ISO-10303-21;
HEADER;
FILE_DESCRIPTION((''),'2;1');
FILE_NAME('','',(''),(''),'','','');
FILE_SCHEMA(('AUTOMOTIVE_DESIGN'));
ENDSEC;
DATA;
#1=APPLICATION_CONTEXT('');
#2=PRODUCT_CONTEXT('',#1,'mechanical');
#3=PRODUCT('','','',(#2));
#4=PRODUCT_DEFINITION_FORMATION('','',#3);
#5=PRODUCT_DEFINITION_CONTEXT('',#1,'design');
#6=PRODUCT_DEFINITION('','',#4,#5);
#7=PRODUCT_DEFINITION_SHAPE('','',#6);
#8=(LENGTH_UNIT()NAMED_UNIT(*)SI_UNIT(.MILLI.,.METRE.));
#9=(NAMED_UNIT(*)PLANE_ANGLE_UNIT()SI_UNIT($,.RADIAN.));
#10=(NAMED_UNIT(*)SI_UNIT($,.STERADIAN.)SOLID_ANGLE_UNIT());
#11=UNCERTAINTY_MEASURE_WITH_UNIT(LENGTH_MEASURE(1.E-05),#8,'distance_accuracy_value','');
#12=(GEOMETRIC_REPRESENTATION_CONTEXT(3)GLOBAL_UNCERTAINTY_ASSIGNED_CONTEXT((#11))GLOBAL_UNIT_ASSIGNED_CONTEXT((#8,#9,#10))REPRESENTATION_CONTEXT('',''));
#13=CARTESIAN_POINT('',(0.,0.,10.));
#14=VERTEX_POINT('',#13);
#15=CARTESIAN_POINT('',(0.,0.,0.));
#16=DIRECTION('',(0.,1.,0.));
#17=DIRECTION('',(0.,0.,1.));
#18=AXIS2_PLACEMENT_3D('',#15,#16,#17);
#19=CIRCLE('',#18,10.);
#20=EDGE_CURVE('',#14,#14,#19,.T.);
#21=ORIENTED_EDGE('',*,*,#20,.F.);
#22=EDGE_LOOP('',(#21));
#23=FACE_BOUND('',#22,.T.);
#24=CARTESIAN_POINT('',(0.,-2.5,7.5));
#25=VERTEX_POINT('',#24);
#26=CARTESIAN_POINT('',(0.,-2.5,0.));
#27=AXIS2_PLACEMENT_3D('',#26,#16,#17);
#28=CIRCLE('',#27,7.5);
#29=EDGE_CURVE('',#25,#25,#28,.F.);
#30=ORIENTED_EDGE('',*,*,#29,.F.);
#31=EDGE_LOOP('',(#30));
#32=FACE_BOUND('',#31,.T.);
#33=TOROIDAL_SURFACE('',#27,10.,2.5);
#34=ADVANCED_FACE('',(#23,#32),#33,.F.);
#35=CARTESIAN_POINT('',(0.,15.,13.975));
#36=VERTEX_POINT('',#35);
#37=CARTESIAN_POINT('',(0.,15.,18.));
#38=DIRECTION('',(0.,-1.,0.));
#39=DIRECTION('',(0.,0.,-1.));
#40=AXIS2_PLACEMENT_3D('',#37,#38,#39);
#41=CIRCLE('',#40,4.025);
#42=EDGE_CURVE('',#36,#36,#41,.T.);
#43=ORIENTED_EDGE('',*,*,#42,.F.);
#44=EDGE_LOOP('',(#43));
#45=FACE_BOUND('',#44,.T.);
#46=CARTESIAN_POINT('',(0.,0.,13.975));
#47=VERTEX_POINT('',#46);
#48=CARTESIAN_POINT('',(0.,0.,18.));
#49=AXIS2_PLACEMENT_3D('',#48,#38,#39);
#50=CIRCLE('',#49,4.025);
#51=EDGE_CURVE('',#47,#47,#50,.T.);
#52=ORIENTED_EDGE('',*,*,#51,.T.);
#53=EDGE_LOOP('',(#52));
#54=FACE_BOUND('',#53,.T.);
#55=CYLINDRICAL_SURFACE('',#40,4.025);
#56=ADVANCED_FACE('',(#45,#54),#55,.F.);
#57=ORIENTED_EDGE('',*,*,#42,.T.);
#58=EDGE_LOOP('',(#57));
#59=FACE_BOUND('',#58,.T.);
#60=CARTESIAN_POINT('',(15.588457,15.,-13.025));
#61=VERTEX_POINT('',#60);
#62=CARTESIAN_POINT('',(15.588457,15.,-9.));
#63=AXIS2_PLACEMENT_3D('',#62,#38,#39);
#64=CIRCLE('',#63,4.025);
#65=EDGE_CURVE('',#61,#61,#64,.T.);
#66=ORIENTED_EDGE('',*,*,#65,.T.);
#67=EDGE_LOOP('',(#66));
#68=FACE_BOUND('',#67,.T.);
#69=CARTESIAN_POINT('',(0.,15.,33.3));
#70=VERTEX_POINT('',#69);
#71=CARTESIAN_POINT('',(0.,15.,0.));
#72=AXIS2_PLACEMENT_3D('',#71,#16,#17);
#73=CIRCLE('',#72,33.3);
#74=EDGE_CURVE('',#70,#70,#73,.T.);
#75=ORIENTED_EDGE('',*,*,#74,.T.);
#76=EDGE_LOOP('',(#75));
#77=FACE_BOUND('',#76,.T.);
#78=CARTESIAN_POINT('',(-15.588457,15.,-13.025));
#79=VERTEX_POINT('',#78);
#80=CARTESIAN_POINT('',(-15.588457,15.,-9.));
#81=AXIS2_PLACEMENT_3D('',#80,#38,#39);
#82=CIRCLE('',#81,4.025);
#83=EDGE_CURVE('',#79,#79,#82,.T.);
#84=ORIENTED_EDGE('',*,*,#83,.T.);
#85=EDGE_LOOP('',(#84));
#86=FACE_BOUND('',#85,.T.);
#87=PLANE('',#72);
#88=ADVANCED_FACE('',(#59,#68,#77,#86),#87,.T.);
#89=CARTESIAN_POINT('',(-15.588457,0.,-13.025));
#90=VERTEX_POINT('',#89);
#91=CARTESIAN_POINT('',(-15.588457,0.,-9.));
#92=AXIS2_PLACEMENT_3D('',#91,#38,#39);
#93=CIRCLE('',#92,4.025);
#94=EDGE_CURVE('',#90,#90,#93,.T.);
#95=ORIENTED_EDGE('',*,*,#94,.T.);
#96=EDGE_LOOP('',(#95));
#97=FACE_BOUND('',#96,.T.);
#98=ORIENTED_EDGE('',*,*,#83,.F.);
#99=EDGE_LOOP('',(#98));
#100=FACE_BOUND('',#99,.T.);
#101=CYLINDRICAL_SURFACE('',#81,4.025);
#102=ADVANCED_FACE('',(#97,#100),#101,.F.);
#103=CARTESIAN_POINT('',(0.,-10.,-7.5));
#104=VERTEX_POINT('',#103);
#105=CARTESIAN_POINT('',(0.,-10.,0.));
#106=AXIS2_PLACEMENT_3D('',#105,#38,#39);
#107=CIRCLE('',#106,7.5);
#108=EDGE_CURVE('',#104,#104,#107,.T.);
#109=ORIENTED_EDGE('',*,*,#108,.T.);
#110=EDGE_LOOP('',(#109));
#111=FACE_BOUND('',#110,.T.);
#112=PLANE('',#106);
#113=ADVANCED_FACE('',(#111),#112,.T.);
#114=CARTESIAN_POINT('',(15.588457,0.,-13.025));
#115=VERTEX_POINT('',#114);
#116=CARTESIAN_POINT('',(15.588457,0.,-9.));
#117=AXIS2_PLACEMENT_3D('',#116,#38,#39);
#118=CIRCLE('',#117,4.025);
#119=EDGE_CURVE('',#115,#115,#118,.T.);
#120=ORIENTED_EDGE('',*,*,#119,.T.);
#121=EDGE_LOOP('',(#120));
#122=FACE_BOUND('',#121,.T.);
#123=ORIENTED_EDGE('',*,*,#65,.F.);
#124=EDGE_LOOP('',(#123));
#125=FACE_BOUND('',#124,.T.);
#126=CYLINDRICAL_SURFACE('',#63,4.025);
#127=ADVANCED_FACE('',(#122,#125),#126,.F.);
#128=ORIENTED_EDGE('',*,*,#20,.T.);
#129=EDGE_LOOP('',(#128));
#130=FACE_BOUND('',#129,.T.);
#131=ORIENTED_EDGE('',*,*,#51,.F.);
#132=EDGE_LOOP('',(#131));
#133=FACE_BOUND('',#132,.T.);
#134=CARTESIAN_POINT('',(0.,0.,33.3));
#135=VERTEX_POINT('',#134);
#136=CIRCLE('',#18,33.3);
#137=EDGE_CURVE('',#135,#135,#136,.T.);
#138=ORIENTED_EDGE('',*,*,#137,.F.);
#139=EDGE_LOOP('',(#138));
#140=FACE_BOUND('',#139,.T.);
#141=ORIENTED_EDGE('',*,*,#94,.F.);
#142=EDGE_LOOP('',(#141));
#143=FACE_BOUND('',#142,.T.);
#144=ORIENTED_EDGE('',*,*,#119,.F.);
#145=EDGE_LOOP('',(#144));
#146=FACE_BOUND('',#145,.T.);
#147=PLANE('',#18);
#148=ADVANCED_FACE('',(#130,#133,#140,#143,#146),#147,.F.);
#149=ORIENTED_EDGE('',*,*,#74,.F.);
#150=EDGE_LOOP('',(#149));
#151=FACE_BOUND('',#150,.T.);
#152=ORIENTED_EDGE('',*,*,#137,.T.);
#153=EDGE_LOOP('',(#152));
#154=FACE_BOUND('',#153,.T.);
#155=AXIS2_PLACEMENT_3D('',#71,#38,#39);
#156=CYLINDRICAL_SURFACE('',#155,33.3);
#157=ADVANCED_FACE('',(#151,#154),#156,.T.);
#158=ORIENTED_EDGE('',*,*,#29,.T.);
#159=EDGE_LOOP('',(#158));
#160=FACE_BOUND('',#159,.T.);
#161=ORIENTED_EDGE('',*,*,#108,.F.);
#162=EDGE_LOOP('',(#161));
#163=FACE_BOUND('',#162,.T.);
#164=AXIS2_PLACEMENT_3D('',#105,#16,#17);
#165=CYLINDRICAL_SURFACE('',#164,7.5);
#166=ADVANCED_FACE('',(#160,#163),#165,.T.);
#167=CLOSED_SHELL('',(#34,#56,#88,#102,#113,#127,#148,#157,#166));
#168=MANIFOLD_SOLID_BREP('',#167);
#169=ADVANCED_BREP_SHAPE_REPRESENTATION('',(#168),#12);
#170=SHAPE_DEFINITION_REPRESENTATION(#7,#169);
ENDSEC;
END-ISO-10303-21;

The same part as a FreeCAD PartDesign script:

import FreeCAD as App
import Part
import Sketcher
from FreeCAD import Vector
Q = App.Units.Quantity


def edges_at(feature, points):
    """Names of the edges that pass closest to the given points."""
    edges = feature.Shape.Edges
    near = lambda p: min(range(len(edges)), key=lambda i: edges[i].distToShape(Part.Vertex(*p))[0])
    return sorted({f"Edge{near(p) + 1}" for p in points})

doc = App.newDocument("Part")
body = doc.addObject("PartDesign::Body", "Body")

sketch1 = doc.addObject("Sketcher::SketchObject", "Sketch")
body.addObject(sketch1)
sketch1.AttachmentSupport = (doc.XZ_Plane, [""])
sketch1.MapMode = "FlatFace"
sketch1.addGeometry(Part.Circle(Vector(0, 0, 0), Vector(0, 0, 1), 33), False)
sketch1.addConstraint([
    Sketcher.Constraint("Coincident", 0, 3, -1, 1),
    Sketcher.Constraint("Diameter", 0, Q("66.6 mm")),
])
pad1 = doc.addObject("PartDesign::Pad", "Pad")
body.addObject(pad1)
pad1.Profile = sketch1
pad1.Length = 15
pad1.Reversed = True

sketch2 = doc.addObject("Sketcher::SketchObject", "Sketch001")
body.addObject(sketch2)
sketch2.AttachmentSupport = (doc.XZ_Plane, [""])
sketch2.MapMode = "FlatFace"
sketch2.addGeometry([
    Part.Circle(Vector(0, 18, 0), Vector(0, 0, 1), 4),
    Part.Circle(Vector(15.6, -9, 0), Vector(0, 0, 1), 4),
    Part.Circle(Vector(-15.6, -9, 0), Vector(0, 0, 1), 4),
], False)
sketch2.addConstraint([
    Sketcher.Constraint("Equal", 0, 1),
    Sketcher.Constraint("Equal", 1, 2),
    Sketcher.Constraint("Symmetric", 1, 3, 2, 3, -2),
    Sketcher.Constraint("PointOnObject", 0, 3, -2),
    Sketcher.Constraint("Diameter", 0, Q("8.05 mm")),
    Sketcher.Constraint("DistanceY", -1, 1, 0, 3, Q("18 mm")),
    Sketcher.Constraint("DistanceY", 1, 3, -1, 1, Q("9 mm")),
    Sketcher.Constraint("DistanceX", -1, 1, 1, 3, Q("15.588457 mm")),
])
pocket1 = doc.addObject("PartDesign::Pocket", "Pocket")
body.addObject(pocket1)
pocket1.Profile = sketch2
pocket1.Type = "ThroughAll"

sketch3 = doc.addObject("Sketcher::SketchObject", "Sketch002")
body.addObject(sketch3)
sketch3.AttachmentSupport = (doc.XZ_Plane, [""])
sketch3.MapMode = "FlatFace"
sketch3.addGeometry(Part.Circle(Vector(0, 0, 0), Vector(0, 0, 1), 8), False)
sketch3.addConstraint([
    Sketcher.Constraint("Coincident", 0, 3, -1, 1),
    Sketcher.Constraint("Diameter", 0, Q("15 mm")),
])
pad2 = doc.addObject("PartDesign::Pad", "Pad001")
body.addObject(pad2)
pad2.Profile = sketch3
pad2.Length = 10
doc.recompute()

fillet = doc.addObject("PartDesign::Fillet", "Fillet")
body.addObject(fillet)
fillet.Base = (pad2, edges_at(pad2, [(0, 0, -7.5)]))
fillet.Radius = 2.5

doc.recompute()
